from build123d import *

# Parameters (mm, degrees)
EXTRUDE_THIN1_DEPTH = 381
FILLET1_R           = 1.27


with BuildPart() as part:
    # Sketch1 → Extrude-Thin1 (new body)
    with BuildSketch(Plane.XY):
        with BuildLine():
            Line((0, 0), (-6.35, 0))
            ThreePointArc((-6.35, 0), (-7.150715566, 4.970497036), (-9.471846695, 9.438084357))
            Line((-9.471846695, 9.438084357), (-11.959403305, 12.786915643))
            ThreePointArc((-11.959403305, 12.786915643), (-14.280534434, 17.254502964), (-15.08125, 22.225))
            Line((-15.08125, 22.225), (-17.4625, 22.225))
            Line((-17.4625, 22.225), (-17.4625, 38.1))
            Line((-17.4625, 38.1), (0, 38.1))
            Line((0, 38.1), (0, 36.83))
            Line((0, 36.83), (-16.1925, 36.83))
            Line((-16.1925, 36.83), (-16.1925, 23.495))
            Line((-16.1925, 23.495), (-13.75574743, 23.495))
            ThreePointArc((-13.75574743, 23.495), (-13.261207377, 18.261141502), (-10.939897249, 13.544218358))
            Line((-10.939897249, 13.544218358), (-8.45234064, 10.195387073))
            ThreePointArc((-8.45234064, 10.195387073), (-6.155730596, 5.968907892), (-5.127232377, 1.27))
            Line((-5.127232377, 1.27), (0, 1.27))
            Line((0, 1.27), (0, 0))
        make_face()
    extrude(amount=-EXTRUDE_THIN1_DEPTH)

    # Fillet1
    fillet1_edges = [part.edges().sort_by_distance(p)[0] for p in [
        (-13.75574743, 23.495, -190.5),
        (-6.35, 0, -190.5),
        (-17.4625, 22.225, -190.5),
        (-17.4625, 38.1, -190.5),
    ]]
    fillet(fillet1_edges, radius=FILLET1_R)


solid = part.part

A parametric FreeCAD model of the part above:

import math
import FreeCAD as App
import Part
import Sketcher
from FreeCAD import Vector
Q = App.Units.Quantity


def edges_at(feature, points):
    """Names of the edges that pass closest to the given points."""
    edges = feature.Shape.Edges
    near = lambda p: min(range(len(edges)), key=lambda i: edges[i].distToShape(Part.Vertex(*p))[0])
    return sorted({f"Edge{near(p) + 1}" for p in points})

doc = App.newDocument("Part")
body = doc.addObject("PartDesign::Body", "Body")

sketch1 = body.newObject("Sketcher::SketchObject", "Sketch")
sketch1.AttachmentSupport = (doc.getObject("XY_Plane"), [""])
sketch1.MapMode = "FlatFace"
sketch1.addGeometry([
    Part.LineSegment(Vector(-6.35, 0, 0), Vector(0, 0, 0)),
    Part.LineSegment(Vector(0, 0, 0), Vector(0, 1.27, 0)),
    Part.LineSegment(Vector(0, 1.27, 0), Vector(-5.127232, 1.27, 0)),
    Part.ArcOfCircle(Part.Circle(Vector(-22.177709, 0, 0), Vector(0, 0, 1), 17.097709), math.radians(4.259794), math.radians(36.605458)),
    Part.LineSegment(Vector(-8.452341, 10.195387, 0), Vector(-10.939897, 13.544218, 0)),
    Part.ArcOfCircle(Part.Circle(Vector(0.746459, 22.225, 0), Vector(0, 0, 1), 14.557709), math.radians(174.995211), math.radians(216.605458)),
    Part.LineSegment(Vector(-13.755747, 23.495, 0), Vector(-16.1925, 23.495, 0)),
    Part.LineSegment(Vector(-16.1925, 23.495, 0), Vector(-16.1925, 36.83, 0)),
    Part.LineSegment(Vector(-16.1925, 36.83, 0), Vector(0, 36.83, 0)),
    Part.LineSegment(Vector(0, 36.83, 0), Vector(0, 38.1, 0)),
    Part.LineSegment(Vector(0, 38.1, 0), Vector(-17.4625, 38.1, 0)),
    Part.LineSegment(Vector(-17.4625, 38.1, 0), Vector(-17.4625, 22.225, 0)),
    Part.LineSegment(Vector(-17.4625, 22.225, 0), Vector(-15.08125, 22.225, 0)),
    Part.ArcOfCircle(Part.Circle(Vector(0.746459, 22.225, 0), Vector(0, 0, 1), 15.827709), math.radians(-180), math.radians(-143.394542)),
    Part.LineSegment(Vector(-11.959403, 12.786916, 0), Vector(-9.471847, 9.438084, 0)),
    Part.ArcOfCircle(Part.Circle(Vector(-22.177709, 0, 0), Vector(0, 0, 1), 15.827709), math.radians(0), math.radians(36.605458)),
], False)
sketch1.addConstraint([
    Sketcher.Constraint("Coincident", 0, 2, 1, 1),
    Sketcher.Constraint("Coincident", 1, 2, 2, 1),
    Sketcher.Constraint("Coincident", 2, 2, 3, 1),
    Sketcher.Constraint("Tangent", 3, 2, 4, 1),
    Sketcher.Constraint("Tangent", 4, 2, 5, 2),
    Sketcher.Constraint("Coincident", 5, 1, 6, 1),
    Sketcher.Constraint("Coincident", 6, 2, 7, 1),
    Sketcher.Constraint("Coincident", 7, 2, 8, 1),
    Sketcher.Constraint("Coincident", 8, 2, 9, 1),
    Sketcher.Constraint("Coincident", 9, 2, 10, 1),
    Sketcher.Constraint("Coincident", 10, 2, 11, 1),
    Sketcher.Constraint("Coincident", 11, 2, 12, 1),
    Sketcher.Constraint("Coincident", 12, 2, 13, 1),
    Sketcher.Constraint("Tangent", 13, 2, 14, 1),
    Sketcher.Constraint("Tangent", 14, 2, 15, 2),
    Sketcher.Constraint("Coincident", 15, 1, 0, 1),
    Sketcher.Constraint("Horizontal", 0),
    Sketcher.Constraint("Vertical", 1),
    Sketcher.Constraint("Horizontal", 2),
    Sketcher.Constraint("Horizontal", 6),
    Sketcher.Constraint("Vertical", 7),
    Sketcher.Constraint("Horizontal", 8),
    Sketcher.Constraint("Vertical", 9),
    Sketcher.Constraint("Horizontal", 10),
    Sketcher.Constraint("Vertical", 11),
    Sketcher.Constraint("Horizontal", 12),
    Sketcher.Constraint("Coincident", 0, 2, -1, 1),
    Sketcher.Constraint("Coincident", 13, 3, 5, 3),
    Sketcher.Constraint("Coincident", 15, 3, 3, 3),
    Sketcher.Constraint("Equal", 13, 15),
    Sketcher.Constraint("PointOnObject", 3, 3, -1),
    Sketcher.Constraint("PointOnObject", 8, 2, -2),
    Sketcher.Constraint("Parallel", 4, 14),
    Sketcher.Constraint("Horizontal", 13, 3, 11, 2),
    Sketcher.Constraint("Equal", 1, 9),
    Sketcher.Constraint("DistanceX", 0, 1, 0, 2, Q("0.25 in")),
    Sketcher.Constraint("DistanceY", 1, 1, 1, 2, Q("0.05 in")),
    Sketcher.Constraint("DistanceY", -1, 1, 9, 2, Q("1.5 in")),
    Sketcher.Constraint("DistanceX", 10, 2, 10, 1, Q("0.6875 in")),
    Sketcher.Constraint("DistanceX", 12, 1, 12, 2, Q("0.09375 in")),
    Sketcher.Constraint("DistanceY", 7, 1, 7, 2, Q("0.525 in")),
    Sketcher.Constraint("DistanceY", 11, 2, 11, 1, Q("0.625 in")),
    Sketcher.Constraint("DistanceX", 10, 2, 7, 2, Q("0.05 in")),
    Sketcher.Constraint("Radius", 3, Q("17.097709 mm")),
    Sketcher.Constraint("Radius", 5, Q("14.557709 mm")),
])
pad1 = body.newObject("PartDesign::Pad", "Pad")
pad1.Profile = sketch1
pad1.Length = Q("15 in")
pad1.Reversed = True
doc.recompute()

fillet = body.newObject("PartDesign::Fillet", "Fillet")
fillet.Base = (pad1, edges_at(pad1, [
    (-13.756, 23.495, -190.5),
    (-6.35, 0, -190.5),
    (-17.462, 22.225, -190.5),
    (-17.462, 38.1, -190.5),
]))
fillet.Radius = Q("0.05 in")

doc.recompute()
